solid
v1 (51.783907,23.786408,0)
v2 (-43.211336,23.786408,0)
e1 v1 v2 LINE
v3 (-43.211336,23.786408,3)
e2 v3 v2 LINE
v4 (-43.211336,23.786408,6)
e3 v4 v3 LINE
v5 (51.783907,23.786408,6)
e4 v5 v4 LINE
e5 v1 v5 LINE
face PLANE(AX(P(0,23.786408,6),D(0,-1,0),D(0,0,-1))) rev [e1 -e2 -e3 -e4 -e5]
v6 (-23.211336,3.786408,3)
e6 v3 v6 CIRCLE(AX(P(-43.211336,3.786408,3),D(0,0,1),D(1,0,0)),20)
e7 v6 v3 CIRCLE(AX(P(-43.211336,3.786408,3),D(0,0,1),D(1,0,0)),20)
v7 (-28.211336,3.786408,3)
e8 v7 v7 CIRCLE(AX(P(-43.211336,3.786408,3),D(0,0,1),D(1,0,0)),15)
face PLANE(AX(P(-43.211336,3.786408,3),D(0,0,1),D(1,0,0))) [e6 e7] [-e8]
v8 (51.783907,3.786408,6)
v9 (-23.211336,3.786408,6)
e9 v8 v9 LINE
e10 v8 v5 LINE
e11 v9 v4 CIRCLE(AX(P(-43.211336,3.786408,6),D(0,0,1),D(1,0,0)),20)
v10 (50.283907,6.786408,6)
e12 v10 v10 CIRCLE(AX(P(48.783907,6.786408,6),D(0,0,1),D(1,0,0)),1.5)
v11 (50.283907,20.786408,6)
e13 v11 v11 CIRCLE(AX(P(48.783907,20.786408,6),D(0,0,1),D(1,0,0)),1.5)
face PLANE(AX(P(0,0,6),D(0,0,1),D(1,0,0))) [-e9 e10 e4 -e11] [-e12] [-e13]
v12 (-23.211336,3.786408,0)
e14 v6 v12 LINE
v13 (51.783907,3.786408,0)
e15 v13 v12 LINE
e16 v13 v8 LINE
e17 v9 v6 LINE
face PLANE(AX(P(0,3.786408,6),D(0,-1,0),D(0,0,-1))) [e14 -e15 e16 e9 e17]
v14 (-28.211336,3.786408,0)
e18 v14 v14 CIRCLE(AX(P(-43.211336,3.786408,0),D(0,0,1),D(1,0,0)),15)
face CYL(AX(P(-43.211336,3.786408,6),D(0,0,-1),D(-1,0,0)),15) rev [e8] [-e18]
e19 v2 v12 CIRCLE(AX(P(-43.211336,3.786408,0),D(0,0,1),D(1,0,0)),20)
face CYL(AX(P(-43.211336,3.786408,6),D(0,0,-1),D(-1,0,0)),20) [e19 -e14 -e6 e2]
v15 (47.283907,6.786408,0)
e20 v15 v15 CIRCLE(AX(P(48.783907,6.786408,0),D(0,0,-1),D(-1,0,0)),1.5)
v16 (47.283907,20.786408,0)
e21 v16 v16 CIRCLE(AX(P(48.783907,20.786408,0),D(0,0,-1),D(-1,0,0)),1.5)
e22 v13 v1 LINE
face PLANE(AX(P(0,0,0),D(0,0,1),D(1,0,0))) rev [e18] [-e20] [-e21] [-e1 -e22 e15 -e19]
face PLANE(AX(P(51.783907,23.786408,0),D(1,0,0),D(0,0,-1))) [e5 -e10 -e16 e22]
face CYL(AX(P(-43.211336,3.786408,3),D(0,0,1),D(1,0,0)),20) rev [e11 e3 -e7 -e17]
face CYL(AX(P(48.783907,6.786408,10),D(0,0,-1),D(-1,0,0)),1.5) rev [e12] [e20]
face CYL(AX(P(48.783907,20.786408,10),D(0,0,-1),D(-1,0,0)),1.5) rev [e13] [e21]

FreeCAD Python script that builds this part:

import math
import FreeCAD as App
import Part
import Sketcher

doc = App.newDocument("Part")
body = doc.addObject("PartDesign::Body", "Body")

# Sketch on XY plane
sketch1 = body.newObject("Sketcher::SketchObject", "Sketch")
sketch1.AttachmentSupport = (doc.getObject("XY_Plane"), [""])
sketch1.MapMode = "FlatFace"
sketch1.addGeometry([
    Part.LineSegment(App.Vector(43, 24, 0), App.Vector(-43, 24, 0)),  # 0
    Part.ArcOfCircle(Part.Circle(App.Vector(-43, 4, 0), App.Vector(0, 0, 1), 20), math.radians(90), math.radians(360)),  # 1
    Part.LineSegment(App.Vector(-23, 4, 0), App.Vector(43, 4, 0)),  # 2
    Part.LineSegment(App.Vector(43, 4, 0), App.Vector(43, 24, 0)),  # 3
    Part.ArcOfCircle(Part.Circle(App.Vector(-43, 4, 0), App.Vector(0, 0, 1), 15), math.radians(0), math.radians(90)),  # 4
    Part.ArcOfCircle(Part.Circle(App.Vector(-43, 4, 0), App.Vector(0, 0, 1), 15), math.radians(90), math.radians(360)),  # 5
], False)
sketch1.addConstraint([
    Sketcher.Constraint("Tangent", 0, 2, 1, 1),
    Sketcher.Constraint("Coincident", 1, 2, 2, 1),
    Sketcher.Constraint("Coincident", 2, 2, 3, 1),
    Sketcher.Constraint("Coincident", 3, 2, 0, 1),
    Sketcher.Constraint("Tangent", 4, 1, 5, 2),
    Sketcher.Constraint("Coincident", 5, 1, 4, 2),
    Sketcher.Constraint("Horizontal", 0),
    Sketcher.Constraint("Horizontal", 2),
    Sketcher.Constraint("Vertical", 3),
    Sketcher.Constraint("Coincident", 4, 3, 1, 3),
    Sketcher.Constraint("Horizontal", 5, 3, 1, 2),
    Sketcher.Constraint("Horizontal", 2, 2, 4, 1),
    Sketcher.Constraint("Vertical", 0, 2, 5, 1),
    Sketcher.Constraint("Radius", 1, 20.0),
    Sketcher.Constraint("Radius", 4, 15.0),
    Sketcher.Constraint("DistanceX", 0, 2, 0, 1, 85.825243),
    Sketcher.Constraint("DistanceX", 1, 3, -1, 1, 43.211336),
    Sketcher.Constraint("DistanceY", -1, 1, 1, 3, 3.786408),
])
pad1 = body.newObject("PartDesign::Pad", "Pad")
pad1.Profile = sketch1
pad1.Length = 6

# Sketch on XY plane
sketch2 = body.newObject("Sketcher::SketchObject", "Sketch001")
sketch2.AttachmentSupport = (doc.getObject("XY_Plane"), [""])
sketch2.MapMode = "FlatFace"
sketch2.AttachmentOffset = App.Placement(App.Vector(0, 0, 6), App.Rotation())
sketch2.addGeometry([
    Part.Circle(App.Vector(-43, 4, 0), App.Vector(0, 0, 1), 20),
    Part.Circle(App.Vector(-43, 4, 0), App.Vector(0, 0, 1), 15),
], False)
sketch2.addConstraint([
    Sketcher.Constraint("Coincident", 1, 3, 0, 3),
    Sketcher.Constraint("Diameter", 0, 40.0),
    Sketcher.Constraint("Diameter", 1, 30.0),
    Sketcher.Constraint("DistanceX", 0, 3, -1, 1, 43.211336),
    Sketcher.Constraint("DistanceY", -1, 1, 0, 3, 3.786408),
])
pocket1 = body.newObject("PartDesign::Pocket", "Pocket")
pocket1.Profile = sketch2
pocket1.Length = 3

# Sketch on XY plane
sketch3 = body.newObject("Sketcher::SketchObject", "Sketch002")
sketch3.AttachmentSupport = (doc.getObject("XY_Plane"), [""])
sketch3.MapMode = "FlatFace"
sketch3.AttachmentOffset = App.Placement(App.Vector(0, 0, 6), App.Rotation())
sketch3.addGeometry([
    Part.LineSegment(App.Vector(43, 24, 0), App.Vector(43, 4, 0)),
    Part.LineSegment(App.Vector(43, 4, 0), App.Vector(52, 4, 0)),
    Part.LineSegment(App.Vector(52, 4, 0), App.Vector(52, 24, 0)),
    Part.LineSegment(App.Vector(52, 24, 0), App.Vector(43, 24, 0)),
], False)
sketch3.addConstraint([
    Sketcher.Constraint("Coincident", 0, 2, 1, 1),
    Sketcher.Constraint("Coincident", 1, 2, 2, 1),
    Sketcher.Constraint("Coincident", 2, 2, 3, 1),
    Sketcher.Constraint("Coincident", 3, 2, 0, 1),
    Sketcher.Constraint("Vertical", 0),
    Sketcher.Constraint("Horizontal", 1),
    Sketcher.Constraint("Vertical", 2),
    Sketcher.Constraint("Horizontal", 3),
    Sketcher.Constraint("DistanceY", 0, 2, 0, 1, 20.0),
    Sketcher.Constraint("DistanceX", 1, 1, 1, 2, 9.17),
    Sketcher.Constraint("DistanceX", -1, 1, 0, 2, 42.613907),
    Sketcher.Constraint("DistanceY", -1, 1, 0, 2, 3.786408),
])
pad2 = body.newObject("PartDesign::Pad", "Pad001")
pad2.Profile = sketch3
pad2.Length = 6
pad2.Reversed = True

# Sketch on XY plane
sketch4 = body.newObject("Sketcher::SketchObject", "Sketch003")
sketch4.AttachmentSupport = (doc.getObject("XY_Plane"), [""])
sketch4.MapMode = "FlatFace"
sketch4.addGeometry([
    Part.Circle(App.Vector(48.8, 20.8, 0), App.Vector(0, 0, 1), 1.5),
    Part.Circle(App.Vector(48.8, 6.8, 0), App.Vector(0, 0, 1), 1.5),
], False)
sketch4.addConstraint([
    Sketcher.Constraint("Equal", 0, 1),
    Sketcher.Constraint("Vertical", 0, 3, 1, 3),
    Sketcher.Constraint("Diameter", 0, 3.0),
    Sketcher.Constraint("DistanceY", 1, 3, 0, 3, 14.0),
    Sketcher.Constraint("DistanceX", -1, 1, 0, 3, 48.783907),
    Sketcher.Constraint("DistanceY", -1, 1, 0, 3, 20.786408),
])
pocket2 = body.newObject("PartDesign::Pocket", "Pocket001")
pocket2.Profile = sketch4
pocket2.Length = 10
pocket2.Reversed = True

doc.recompute()
